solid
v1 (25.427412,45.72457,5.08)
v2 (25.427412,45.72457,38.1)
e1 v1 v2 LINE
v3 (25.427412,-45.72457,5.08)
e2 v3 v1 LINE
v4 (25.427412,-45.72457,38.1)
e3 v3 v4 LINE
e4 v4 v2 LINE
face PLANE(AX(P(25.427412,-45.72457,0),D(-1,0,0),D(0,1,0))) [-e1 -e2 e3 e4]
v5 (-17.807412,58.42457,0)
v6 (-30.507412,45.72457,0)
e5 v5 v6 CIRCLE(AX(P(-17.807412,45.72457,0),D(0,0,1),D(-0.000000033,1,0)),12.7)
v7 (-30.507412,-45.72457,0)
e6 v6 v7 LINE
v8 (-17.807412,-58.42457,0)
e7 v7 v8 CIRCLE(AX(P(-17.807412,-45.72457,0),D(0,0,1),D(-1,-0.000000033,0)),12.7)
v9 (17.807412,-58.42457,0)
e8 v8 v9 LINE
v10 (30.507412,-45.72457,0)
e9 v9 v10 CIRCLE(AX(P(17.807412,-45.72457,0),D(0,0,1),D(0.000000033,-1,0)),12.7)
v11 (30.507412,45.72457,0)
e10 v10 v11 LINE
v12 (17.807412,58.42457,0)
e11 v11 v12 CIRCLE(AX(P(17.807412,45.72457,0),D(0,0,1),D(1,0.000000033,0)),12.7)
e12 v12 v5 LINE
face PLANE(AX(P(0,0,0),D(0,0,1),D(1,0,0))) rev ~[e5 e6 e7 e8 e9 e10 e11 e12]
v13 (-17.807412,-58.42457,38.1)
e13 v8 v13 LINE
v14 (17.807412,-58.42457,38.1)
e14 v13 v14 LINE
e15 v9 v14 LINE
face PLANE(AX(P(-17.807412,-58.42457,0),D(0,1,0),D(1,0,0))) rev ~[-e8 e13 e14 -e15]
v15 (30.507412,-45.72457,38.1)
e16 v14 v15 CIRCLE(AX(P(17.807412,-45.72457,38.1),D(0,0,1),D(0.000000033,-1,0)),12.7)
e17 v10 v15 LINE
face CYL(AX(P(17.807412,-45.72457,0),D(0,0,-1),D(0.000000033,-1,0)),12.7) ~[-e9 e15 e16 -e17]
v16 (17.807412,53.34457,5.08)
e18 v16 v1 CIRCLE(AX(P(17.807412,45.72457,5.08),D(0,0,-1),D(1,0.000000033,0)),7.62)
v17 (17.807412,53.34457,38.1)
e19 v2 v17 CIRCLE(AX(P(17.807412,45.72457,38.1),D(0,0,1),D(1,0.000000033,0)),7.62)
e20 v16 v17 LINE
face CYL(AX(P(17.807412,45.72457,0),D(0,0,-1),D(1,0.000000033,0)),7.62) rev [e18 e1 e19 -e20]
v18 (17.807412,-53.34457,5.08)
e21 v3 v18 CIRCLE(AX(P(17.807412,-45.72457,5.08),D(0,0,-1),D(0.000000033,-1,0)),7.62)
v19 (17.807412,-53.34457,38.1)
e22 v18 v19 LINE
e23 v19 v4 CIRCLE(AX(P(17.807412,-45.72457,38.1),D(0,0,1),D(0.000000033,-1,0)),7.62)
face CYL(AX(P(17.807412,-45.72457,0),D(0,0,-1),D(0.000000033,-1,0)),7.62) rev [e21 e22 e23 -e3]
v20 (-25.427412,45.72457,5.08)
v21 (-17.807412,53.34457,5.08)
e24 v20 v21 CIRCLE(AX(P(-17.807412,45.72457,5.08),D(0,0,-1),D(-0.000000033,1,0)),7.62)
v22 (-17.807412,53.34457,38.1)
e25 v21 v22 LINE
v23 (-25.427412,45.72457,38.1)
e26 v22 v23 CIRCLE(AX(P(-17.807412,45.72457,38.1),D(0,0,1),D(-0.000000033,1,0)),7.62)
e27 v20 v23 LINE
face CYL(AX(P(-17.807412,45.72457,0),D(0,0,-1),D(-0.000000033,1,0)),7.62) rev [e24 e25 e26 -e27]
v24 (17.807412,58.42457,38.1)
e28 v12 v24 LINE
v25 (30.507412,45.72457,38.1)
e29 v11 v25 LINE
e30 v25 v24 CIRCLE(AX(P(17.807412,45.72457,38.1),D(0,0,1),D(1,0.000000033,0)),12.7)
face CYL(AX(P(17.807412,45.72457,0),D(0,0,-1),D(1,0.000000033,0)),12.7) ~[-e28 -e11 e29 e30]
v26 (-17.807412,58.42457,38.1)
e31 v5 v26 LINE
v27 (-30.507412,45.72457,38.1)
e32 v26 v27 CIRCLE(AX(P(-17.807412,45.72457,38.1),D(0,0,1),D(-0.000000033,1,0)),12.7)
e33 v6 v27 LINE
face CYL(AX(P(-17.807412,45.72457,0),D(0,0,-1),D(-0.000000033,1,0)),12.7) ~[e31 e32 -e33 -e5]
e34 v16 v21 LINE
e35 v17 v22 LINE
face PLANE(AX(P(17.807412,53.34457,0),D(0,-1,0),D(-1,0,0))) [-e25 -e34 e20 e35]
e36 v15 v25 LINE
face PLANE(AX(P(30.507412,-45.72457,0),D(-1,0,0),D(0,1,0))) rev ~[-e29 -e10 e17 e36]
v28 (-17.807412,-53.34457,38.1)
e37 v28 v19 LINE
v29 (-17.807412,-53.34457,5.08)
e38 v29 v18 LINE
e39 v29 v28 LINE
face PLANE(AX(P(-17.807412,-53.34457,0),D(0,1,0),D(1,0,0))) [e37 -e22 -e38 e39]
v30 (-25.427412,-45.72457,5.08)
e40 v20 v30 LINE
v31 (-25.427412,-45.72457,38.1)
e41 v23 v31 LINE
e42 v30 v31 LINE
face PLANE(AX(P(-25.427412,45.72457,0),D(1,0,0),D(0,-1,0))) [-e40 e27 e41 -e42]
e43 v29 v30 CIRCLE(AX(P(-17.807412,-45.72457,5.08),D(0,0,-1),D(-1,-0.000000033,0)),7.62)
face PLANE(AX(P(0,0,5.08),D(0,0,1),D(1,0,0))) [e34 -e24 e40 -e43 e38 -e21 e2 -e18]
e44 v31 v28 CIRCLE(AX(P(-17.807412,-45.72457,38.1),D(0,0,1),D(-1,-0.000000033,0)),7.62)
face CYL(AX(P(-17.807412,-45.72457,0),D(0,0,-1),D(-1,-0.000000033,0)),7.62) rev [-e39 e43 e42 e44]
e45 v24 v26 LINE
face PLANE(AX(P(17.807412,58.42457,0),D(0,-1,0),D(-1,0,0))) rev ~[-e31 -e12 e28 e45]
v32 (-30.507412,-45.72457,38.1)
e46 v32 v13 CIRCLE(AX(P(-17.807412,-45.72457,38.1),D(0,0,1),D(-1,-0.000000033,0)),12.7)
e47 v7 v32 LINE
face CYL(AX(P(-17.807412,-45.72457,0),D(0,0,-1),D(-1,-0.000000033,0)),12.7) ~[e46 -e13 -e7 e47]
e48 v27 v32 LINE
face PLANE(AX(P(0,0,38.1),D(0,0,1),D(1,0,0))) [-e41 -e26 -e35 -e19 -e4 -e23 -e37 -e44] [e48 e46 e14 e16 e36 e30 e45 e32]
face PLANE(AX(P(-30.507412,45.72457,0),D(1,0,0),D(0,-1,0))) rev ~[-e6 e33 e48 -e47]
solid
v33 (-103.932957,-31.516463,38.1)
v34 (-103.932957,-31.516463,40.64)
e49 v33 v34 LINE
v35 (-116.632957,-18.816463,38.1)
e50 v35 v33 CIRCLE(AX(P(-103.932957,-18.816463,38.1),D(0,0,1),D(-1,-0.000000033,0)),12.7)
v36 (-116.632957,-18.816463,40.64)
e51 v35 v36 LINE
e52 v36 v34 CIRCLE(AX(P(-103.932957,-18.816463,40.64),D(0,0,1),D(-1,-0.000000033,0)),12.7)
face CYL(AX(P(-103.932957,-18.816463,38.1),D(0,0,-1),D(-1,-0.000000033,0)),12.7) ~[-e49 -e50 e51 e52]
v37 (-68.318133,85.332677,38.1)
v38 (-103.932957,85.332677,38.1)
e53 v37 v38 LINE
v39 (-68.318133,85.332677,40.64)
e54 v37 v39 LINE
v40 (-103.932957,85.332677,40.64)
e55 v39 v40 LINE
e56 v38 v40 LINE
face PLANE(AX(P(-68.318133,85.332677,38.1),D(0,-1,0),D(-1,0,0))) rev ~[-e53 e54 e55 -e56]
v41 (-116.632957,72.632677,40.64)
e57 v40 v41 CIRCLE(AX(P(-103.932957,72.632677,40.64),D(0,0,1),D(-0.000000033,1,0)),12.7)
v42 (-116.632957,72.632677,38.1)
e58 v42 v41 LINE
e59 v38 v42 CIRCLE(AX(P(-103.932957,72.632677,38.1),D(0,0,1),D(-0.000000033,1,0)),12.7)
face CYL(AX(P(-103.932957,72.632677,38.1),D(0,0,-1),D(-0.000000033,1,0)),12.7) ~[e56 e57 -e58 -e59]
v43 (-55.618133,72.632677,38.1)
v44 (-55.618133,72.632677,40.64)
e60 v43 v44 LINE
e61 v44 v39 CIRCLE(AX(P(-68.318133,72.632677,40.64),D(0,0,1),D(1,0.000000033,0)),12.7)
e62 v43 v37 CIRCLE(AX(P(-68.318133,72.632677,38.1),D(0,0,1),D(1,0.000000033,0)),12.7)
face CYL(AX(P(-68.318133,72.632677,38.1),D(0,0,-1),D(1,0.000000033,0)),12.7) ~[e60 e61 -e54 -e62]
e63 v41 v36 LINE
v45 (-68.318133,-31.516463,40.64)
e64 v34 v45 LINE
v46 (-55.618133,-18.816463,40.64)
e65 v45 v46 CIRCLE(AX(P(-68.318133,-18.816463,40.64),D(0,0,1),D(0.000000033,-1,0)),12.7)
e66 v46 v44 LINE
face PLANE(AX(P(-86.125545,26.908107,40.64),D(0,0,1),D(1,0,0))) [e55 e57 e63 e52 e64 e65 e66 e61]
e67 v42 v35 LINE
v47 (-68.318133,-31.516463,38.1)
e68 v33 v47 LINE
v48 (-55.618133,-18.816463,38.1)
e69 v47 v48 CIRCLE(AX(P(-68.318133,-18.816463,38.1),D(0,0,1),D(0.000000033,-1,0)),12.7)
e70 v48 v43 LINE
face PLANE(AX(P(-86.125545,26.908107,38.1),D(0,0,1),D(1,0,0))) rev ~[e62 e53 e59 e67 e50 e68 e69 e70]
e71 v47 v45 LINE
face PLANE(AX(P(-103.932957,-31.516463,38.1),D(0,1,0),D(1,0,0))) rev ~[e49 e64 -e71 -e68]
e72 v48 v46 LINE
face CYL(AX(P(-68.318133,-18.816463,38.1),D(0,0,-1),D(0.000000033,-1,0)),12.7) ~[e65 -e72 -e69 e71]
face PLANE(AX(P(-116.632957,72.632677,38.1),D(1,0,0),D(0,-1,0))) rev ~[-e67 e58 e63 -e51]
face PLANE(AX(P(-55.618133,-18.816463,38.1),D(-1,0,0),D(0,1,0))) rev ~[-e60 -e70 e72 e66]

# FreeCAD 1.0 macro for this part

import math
import FreeCAD as App
import Part
import Sketcher
from FreeCAD import Vector
Q = App.Units.Quantity


def faces_at(feature, points):
    """Names of the faces that lie closest to the given points."""
    faces = feature.Shape.Faces
    near = lambda p: min(range(len(faces)), key=lambda i: faces[i].distToShape(Part.Vertex(*p))[0])
    return sorted({f"Face{near(p) + 1}" for p in points})

doc = App.newDocument("Part")
body = doc.addObject("PartDesign::Body", "Body")

sketch1 = doc.addObject("Sketcher::SketchObject", "Sketch")
body.addObject(sketch1)
sketch1.AttachmentSupport = (doc.XY_Plane, [""])
sketch1.MapMode = "FlatFace"
sketch1.addGeometry([
    Part.ArcOfCircle(Part.Circle(Vector(18, 46, 0), Vector(0, 0, 1), 13), math.radians(0), math.radians(90)),
    Part.LineSegment(Vector(18, 58, 0), Vector(-18, 58, 0)),
    Part.ArcOfCircle(Part.Circle(Vector(-18, 46, 0), Vector(0, 0, 1), 13), math.radians(90), math.radians(180)),
    Part.LineSegment(Vector(-31, 46, 0), Vector(-31, -46, 0)),
    Part.ArcOfCircle(Part.Circle(Vector(-18, -46, 0), Vector(0, 0, 1), 13), math.radians(-180), math.radians(-90)),
    Part.LineSegment(Vector(-18, -58, 0), Vector(18, -58, 0)),
    Part.ArcOfCircle(Part.Circle(Vector(18, -46, 0), Vector(0, 0, 1), 13), math.radians(-90), math.radians(0)),
    Part.LineSegment(Vector(31, -46, 0), Vector(31, 46, 0)),
], False)
sketch1.addConstraint([
    Sketcher.Constraint("Tangent", 0, 2, 1, 1),
    Sketcher.Constraint("Tangent", 1, 2, 2, 1),
    Sketcher.Constraint("Tangent", 2, 2, 3, 1),
    Sketcher.Constraint("Tangent", 3, 2, 4, 1),
    Sketcher.Constraint("Tangent", 4, 2, 5, 1),
    Sketcher.Constraint("Tangent", 5, 2, 6, 1),
    Sketcher.Constraint("Tangent", 6, 2, 7, 1),
    Sketcher.Constraint("Tangent", 7, 2, 0, 1),
    Sketcher.Constraint("Horizontal", 1),
    Sketcher.Constraint("Vertical", 3),
    Sketcher.Constraint("Horizontal", 5),
    Sketcher.Constraint("Vertical", 7),
    Sketcher.Constraint("Equal", 0, 2),
    Sketcher.Constraint("Equal", 2, 4),
    Sketcher.Constraint("Equal", 4, 6),
    Sketcher.Constraint("Symmetric", 0, 3, 4, 3, -1, 1),
    Sketcher.Constraint("Radius", 0, Q("0.5 in")),
    Sketcher.Constraint("DistanceY", 3, 2, 3, 1, 91.44914),
    Sketcher.Constraint("DistanceX", 1, 2, 1, 1, 35.614824),
])
pad1 = doc.addObject("PartDesign::Pad", "Pad")
body.addObject(pad1)
pad1.Profile = sketch1
pad1.Length = Q("1.5 in")
doc.recompute()

thickness = doc.addObject("PartDesign::Thickness", "Thickness")
body.addObject(thickness)
thickness.Base = (pad1, faces_at(pad1, [(0, 0, 38.1)]))
thickness.Value = Q("0.2 in")
thickness.Reversed = True
thickness.Join = "Arc"
body2 = doc.addObject("PartDesign::Body", "Body001")

sketch2 = doc.addObject("Sketcher::SketchObject", "Sketch001")
body2.addObject(sketch2)
sketch2.AttachmentSupport = (doc.getObject("XY_Plane001"), [""])
sketch2.MapMode = "FlatFace"
sketch2.AttachmentOffset = App.Placement(Vector(0, 0, 1.5 * 25.4), App.Rotation())
sketch2.addGeometry([
    Part.ArcOfCircle(Part.Circle(Vector(-68, 73, 0), Vector(0, 0, 1), 13), math.radians(0), math.radians(90)),
    Part.LineSegment(Vector(-68, 85, 0), Vector(-104, 85, 0)),
    Part.ArcOfCircle(Part.Circle(Vector(-104, 73, 0), Vector(0, 0, 1), 13), math.radians(90), math.radians(180)),
    Part.LineSegment(Vector(-117, 73, 0), Vector(-117, -19, 0)),
    Part.ArcOfCircle(Part.Circle(Vector(-104, -19, 0), Vector(0, 0, 1), 13), math.radians(-180), math.radians(-90)),
    Part.LineSegment(Vector(-104, -32, 0), Vector(-68, -32, 0)),
    Part.ArcOfCircle(Part.Circle(Vector(-68, -19, 0), Vector(0, 0, 1), 13), math.radians(-90), math.radians(0)),
    Part.LineSegment(Vector(-56, -19, 0), Vector(-56, 73, 0)),
], False)
sketch2.addConstraint([
    Sketcher.Constraint("Tangent", 0, 2, 1, 1),
    Sketcher.Constraint("Tangent", 1, 2, 2, 1),
    Sketcher.Constraint("Tangent", 2, 2, 3, 1),
    Sketcher.Constraint("Tangent", 3, 2, 4, 1),
    Sketcher.Constraint("Tangent", 4, 2, 5, 1),
    Sketcher.Constraint("Tangent", 5, 2, 6, 1),
    Sketcher.Constraint("Tangent", 6, 2, 7, 1),
    Sketcher.Constraint("Tangent", 7, 2, 0, 1),
    Sketcher.Constraint("Horizontal", 1),
    Sketcher.Constraint("Vertical", 3),
    Sketcher.Constraint("Horizontal", 5),
    Sketcher.Constraint("Vertical", 7),
    Sketcher.Constraint("Equal", 0, 2),
    Sketcher.Constraint("Equal", 2, 4),
    Sketcher.Constraint("Equal", 4, 6),
    Sketcher.Constraint("Radius", 0, Q("0.5 in")),
    Sketcher.Constraint("DistanceY", 3, 2, 3, 1, 91.44914),
    Sketcher.Constraint("DistanceX", 1, 2, 1, 1, 35.614824),
    Sketcher.Constraint("DistanceX", 0, 3, -1, 1, 68.318133),
    Sketcher.Constraint("DistanceY", -1, 1, 0, 3, 72.632677),
])
pad2 = doc.addObject("PartDesign::Pad", "Pad001")
body2.addObject(pad2)
pad2.Profile = sketch2
pad2.Length = Q("0.1 in")

doc.recompute()
